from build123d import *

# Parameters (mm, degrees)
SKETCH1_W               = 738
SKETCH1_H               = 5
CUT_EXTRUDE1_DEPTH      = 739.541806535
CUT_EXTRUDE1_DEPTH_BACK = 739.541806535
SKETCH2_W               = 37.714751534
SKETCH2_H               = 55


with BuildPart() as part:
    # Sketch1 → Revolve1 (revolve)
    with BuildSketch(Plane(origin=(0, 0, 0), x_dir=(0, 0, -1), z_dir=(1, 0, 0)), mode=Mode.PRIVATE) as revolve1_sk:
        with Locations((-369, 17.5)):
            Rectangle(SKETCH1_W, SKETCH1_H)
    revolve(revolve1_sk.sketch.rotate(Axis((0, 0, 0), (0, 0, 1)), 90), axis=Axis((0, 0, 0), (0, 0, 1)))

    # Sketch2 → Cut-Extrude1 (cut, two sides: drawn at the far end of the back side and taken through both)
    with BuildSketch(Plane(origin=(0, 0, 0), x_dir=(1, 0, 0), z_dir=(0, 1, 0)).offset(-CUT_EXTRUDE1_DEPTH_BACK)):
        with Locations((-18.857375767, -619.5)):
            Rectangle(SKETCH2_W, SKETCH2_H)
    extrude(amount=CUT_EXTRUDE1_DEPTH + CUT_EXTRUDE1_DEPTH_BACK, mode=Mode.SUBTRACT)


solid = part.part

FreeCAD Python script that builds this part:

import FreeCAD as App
import Part
import Sketcher

V = App.Vector

doc = App.newDocument("Part")
body = doc.addObject("PartDesign::Body", "Body")

# Sketch on YZ plane
sketch1 = body.newObject("Sketcher::SketchObject", "Sketch")
sketch1.AttachmentSupport = (doc.getObject("YZ_Plane"), [""])
sketch1.MapMode = "FlatFace"
sketch1.addGeometry([
    Part.LineSegment(V(20, 738, 0), V(15, 738, 0)),
    Part.LineSegment(V(15, 738, 0), V(15, 0, 0)),
    Part.LineSegment(V(15, 0, 0), V(20, 0, 0)),
    Part.LineSegment(V(20, 0, 0), V(20, 738, 0)),
], False)
sketch1.addConstraint([
    Sketcher.Constraint("Coincident", 0, 2, 1, 1),
    Sketcher.Constraint("Coincident", 1, 2, 2, 1),
    Sketcher.Constraint("Coincident", 2, 2, 3, 1),
    Sketcher.Constraint("Coincident", 3, 2, 0, 1),
    Sketcher.Constraint("Horizontal", 0),
    Sketcher.Constraint("Vertical", 1),
    Sketcher.Constraint("Horizontal", 2),
    Sketcher.Constraint("Vertical", 3),
    Sketcher.Constraint("PointOnObject", 1, 2, -1),
    Sketcher.Constraint("DistanceX", 0, 2, 0, 1, 5.0),
    Sketcher.Constraint("DistanceY", 1, 2, 1, 1, 738.0),
    Sketcher.Constraint("DistanceX", -1, 1, 0, 2, 15.0),
])
revolution = body.newObject("PartDesign::Revolution", "Revolution")
revolution.Profile = sketch1
revolution.ReferenceAxis = (sketch1, ["V_Axis"])
revolution.Angle = 360

# Sketch on XZ plane
sketch2 = body.newObject("Sketcher::SketchObject", "Sketch001")
sketch2.AttachmentSupport = (doc.getObject("XZ_Plane"), [""])
sketch2.MapMode = "FlatFace"
sketch2.addGeometry([
    Part.LineSegment(V(-38, 592, 0), V(-38, 647, 0)),
    Part.LineSegment(V(-38, 647, 0), V(0, 647, 0)),
    Part.LineSegment(V(0, 647, 0), V(0, 592, 0)),
    Part.LineSegment(V(0, 592, 0), V(-38, 592, 0)),
], False)
sketch2.addConstraint([
    Sketcher.Constraint("Coincident", 0, 2, 1, 1),
    Sketcher.Constraint("Coincident", 1, 2, 2, 1),
    Sketcher.Constraint("Coincident", 2, 2, 3, 1),
    Sketcher.Constraint("Coincident", 3, 2, 0, 1),
    Sketcher.Constraint("Vertical", 0),
    Sketcher.Constraint("Horizontal", 1),
    Sketcher.Constraint("Vertical", 2),
    Sketcher.Constraint("Horizontal", 3),
    Sketcher.Constraint("PointOnObject", 1, 2, -2),
    Sketcher.Constraint("DistanceY", 0, 1, 0, 2, 55.0),
    Sketcher.Constraint("DistanceY", -1, 1, 0, 2, 647.0),
    Sketcher.Constraint("DistanceX", 1, 1, 1, 2, 37.714752),
])
pocket1 = body.newObject("PartDesign::Pocket", "Pocket")
pocket1.Profile = sketch2
pocket1.Type = "ThroughAll"
pocket1.Midplane = True

doc.recompute()
